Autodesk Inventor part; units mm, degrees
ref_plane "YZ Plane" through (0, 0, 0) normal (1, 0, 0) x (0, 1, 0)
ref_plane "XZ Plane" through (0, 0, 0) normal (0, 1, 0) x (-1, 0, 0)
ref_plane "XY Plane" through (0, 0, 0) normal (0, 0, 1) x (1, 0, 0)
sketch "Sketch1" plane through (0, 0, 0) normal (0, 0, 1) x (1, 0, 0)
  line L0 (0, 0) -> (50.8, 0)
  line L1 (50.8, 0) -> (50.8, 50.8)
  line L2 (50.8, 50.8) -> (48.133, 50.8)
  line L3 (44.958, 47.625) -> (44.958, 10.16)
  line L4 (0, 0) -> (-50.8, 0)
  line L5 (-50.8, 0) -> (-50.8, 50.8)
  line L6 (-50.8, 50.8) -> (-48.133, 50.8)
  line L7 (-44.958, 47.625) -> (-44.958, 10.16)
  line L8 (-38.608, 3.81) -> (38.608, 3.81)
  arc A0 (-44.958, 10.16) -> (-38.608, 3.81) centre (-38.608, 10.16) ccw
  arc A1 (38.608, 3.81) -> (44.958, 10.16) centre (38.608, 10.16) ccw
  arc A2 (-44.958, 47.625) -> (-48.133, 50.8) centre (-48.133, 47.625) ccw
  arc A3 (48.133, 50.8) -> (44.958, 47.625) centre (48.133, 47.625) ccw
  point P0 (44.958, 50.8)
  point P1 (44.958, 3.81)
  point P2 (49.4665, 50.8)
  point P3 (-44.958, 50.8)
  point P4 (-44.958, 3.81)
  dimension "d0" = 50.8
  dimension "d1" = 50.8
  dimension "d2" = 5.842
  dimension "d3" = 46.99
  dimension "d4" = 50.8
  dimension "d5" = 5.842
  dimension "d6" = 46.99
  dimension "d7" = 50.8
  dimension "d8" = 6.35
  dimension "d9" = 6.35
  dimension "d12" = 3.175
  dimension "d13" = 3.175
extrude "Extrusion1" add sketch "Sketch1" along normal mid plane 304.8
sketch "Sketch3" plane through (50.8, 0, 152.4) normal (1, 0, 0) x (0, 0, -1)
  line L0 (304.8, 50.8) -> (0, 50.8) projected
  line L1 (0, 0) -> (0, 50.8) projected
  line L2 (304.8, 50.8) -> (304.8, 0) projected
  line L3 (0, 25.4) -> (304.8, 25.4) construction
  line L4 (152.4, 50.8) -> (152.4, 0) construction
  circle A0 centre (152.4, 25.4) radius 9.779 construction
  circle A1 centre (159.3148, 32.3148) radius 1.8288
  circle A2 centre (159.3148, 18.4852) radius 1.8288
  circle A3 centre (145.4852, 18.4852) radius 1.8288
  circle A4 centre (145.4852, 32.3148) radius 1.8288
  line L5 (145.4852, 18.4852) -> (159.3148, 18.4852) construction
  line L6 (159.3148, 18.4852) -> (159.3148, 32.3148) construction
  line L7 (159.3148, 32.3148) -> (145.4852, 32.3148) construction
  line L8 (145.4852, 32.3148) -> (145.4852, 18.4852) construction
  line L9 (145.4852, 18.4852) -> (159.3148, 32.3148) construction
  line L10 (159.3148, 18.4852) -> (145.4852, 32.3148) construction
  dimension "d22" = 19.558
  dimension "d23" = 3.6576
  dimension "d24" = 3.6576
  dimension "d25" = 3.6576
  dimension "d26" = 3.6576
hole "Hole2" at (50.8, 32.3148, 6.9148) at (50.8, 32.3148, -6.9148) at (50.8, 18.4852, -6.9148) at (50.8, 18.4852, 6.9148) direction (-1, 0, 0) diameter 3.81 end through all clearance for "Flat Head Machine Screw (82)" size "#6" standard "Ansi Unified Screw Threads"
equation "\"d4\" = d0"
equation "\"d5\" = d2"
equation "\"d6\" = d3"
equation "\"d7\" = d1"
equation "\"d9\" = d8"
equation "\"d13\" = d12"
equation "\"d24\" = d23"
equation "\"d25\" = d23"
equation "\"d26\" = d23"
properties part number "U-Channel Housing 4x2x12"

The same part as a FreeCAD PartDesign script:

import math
import FreeCAD as App
import Part
import Sketcher
Q = App.Units.Quantity

doc = App.newDocument("Part")
body = doc.addObject("PartDesign::Body", "Body")

# Sketch on XY plane
sketch1 = body.newObject("Sketcher::SketchObject", "Sketch")
sketch1.AttachmentSupport = (doc.getObject("XY_Plane"), [""])
sketch1.MapMode = "FlatFace"
sketch1.addGeometry(Part.LineSegment(App.Vector(-50.8, 0, 0), App.Vector(50.8, 0, 0)), False)
sketch1.addGeometry(Part.LineSegment(App.Vector(50.8, 0, 0), App.Vector(50.8, 50.8, 0)), False)
sketch1.addGeometry(Part.LineSegment(App.Vector(50.8, 50.8, 0), App.Vector(48.133, 50.8, 0)), False)
sketch1.addGeometry(Part.ArcOfCircle(Part.Circle(App.Vector(48.133, 47.625, 0), App.Vector(0, 0, 1), 3.175), math.radians(90), math.radians(180)), False)
sketch1.addGeometry(Part.LineSegment(App.Vector(44.958, 47.625, 0), App.Vector(44.958, 10.16, 0)), False)
sketch1.addGeometry(Part.ArcOfCircle(Part.Circle(App.Vector(38.608, 10.16, 0), App.Vector(0, 0, 1), 6.35), math.radians(-90), math.radians(0)), False)
sketch1.addGeometry(Part.LineSegment(App.Vector(38.608, 3.81, 0), App.Vector(-38.608, 3.81, 0)), False)
sketch1.addGeometry(Part.ArcOfCircle(Part.Circle(App.Vector(-38.608, 10.16, 0), App.Vector(0, 0, 1), 6.35), math.radians(180), math.radians(270)), False)
sketch1.addGeometry(Part.LineSegment(App.Vector(-44.958, 10.16, 0), App.Vector(-44.958, 47.625, 0)), False)
sketch1.addGeometry(Part.ArcOfCircle(Part.Circle(App.Vector(-48.133, 47.625, 0), App.Vector(0, 0, 1), 3.175), math.radians(0), math.radians(90)), False)
sketch1.addGeometry(Part.LineSegment(App.Vector(-48.133, 50.8, 0), App.Vector(-50.8, 50.8, 0)), False)
sketch1.addGeometry(Part.LineSegment(App.Vector(-50.8, 50.8, 0), App.Vector(-50.8, 0, 0)), False)
sketch1.addConstraint(Sketcher.Constraint("Coincident", 0, 2, 1, 1))
sketch1.addConstraint(Sketcher.Constraint("Coincident", 1, 2, 2, 1))
sketch1.addConstraint(Sketcher.Constraint("Tangent", 2, 2, 3, 1))
sketch1.addConstraint(Sketcher.Constraint("Tangent", 3, 2, 4, 1))
sketch1.addConstraint(Sketcher.Constraint("Tangent", 4, 2, 5, 2))
sketch1.addConstraint(Sketcher.Constraint("Tangent", 5, 1, 6, 1))
sketch1.addConstraint(Sketcher.Constraint("Tangent", 6, 2, 7, 2))
sketch1.addConstraint(Sketcher.Constraint("Tangent", 7, 1, 8, 1))
sketch1.addConstraint(Sketcher.Constraint("Tangent", 8, 2, 9, 1))
sketch1.addConstraint(Sketcher.Constraint("Tangent", 9, 2, 10, 1))
sketch1.addConstraint(Sketcher.Constraint("Coincident", 10, 2, 11, 1))
sketch1.addConstraint(Sketcher.Constraint("Coincident", 11, 2, 0, 1))
sketch1.addConstraint(Sketcher.Constraint("Horizontal", 0))
sketch1.addConstraint(Sketcher.Constraint("Vertical", 1))
sketch1.addConstraint(Sketcher.Constraint("Horizontal", 2))
sketch1.addConstraint(Sketcher.Constraint("Vertical", 4))
sketch1.addConstraint(Sketcher.Constraint("Horizontal", 6))
sketch1.addConstraint(Sketcher.Constraint("Vertical", 8))
sketch1.addConstraint(Sketcher.Constraint("Horizontal", 10))
sketch1.addConstraint(Sketcher.Constraint("Vertical", 11))
sketch1.addConstraint(Sketcher.Constraint("Equal", 5, 7))
sketch1.addConstraint(Sketcher.Constraint("Equal", 3, 9))
sketch1.addConstraint(Sketcher.Constraint("Symmetric", 0, 2, 11, 2, -1, 1))
sketch1.addConstraint(Sketcher.Constraint("Symmetric", 3, 3, 9, 3, -2))
sketch1.addConstraint(Sketcher.Constraint("DistanceY", 1, 1, 1, 2, Q("2 in")))
sketch1.addConstraint(Sketcher.Constraint("Radius", 5, Q("0.25 in")))
sketch1.addConstraint(Sketcher.Constraint("DistanceX", -1, 1, 0, 2, Q("2 in")))
sketch1.addConstraint(Sketcher.Constraint("Radius", 3, Q("0.125 in")))
sketch1.addConstraint(Sketcher.Constraint("DistanceX", 3, 2, 1, 2, Q("0.23 in")))
sketch1.addConstraint(Sketcher.Constraint("DistanceY", 6, 2, 9, 2, Q("1.85 in")))
pad1 = body.newObject("PartDesign::Pad", "Pad")
pad1.Profile = sketch1
pad1.Length = Q("12 in")
pad1.Midplane = True

# Sketch on YZ plane
sketch2 = body.newObject("Sketcher::SketchObject", "Sketch001")
sketch2.AttachmentSupport = (doc.getObject("YZ_Plane"), [""])
sketch2.MapMode = "FlatFace"
sketch2.AttachmentOffset = App.Placement(App.Vector(0, 0, 2 * 25.4), App.Rotation())
sketch2.addGeometry(Part.Circle(App.Vector(32.3148, 6.9148, 0), App.Vector(0, 0, 1), 1.905), False)
sketch2.addGeometry(Part.Circle(App.Vector(32.3148, -6.9148, 0), App.Vector(0, 0, 1), 1.905), False)
sketch2.addGeometry(Part.Circle(App.Vector(18.4852, -6.9148, 0), App.Vector(0, 0, 1), 1.905), False)
sketch2.addGeometry(Part.Circle(App.Vector(18.4852, 6.9148, 0), App.Vector(0, 0, 1), 1.905), False)
sketch2.addConstraint(Sketcher.Constraint("Equal", 0, 1))
sketch2.addConstraint(Sketcher.Constraint("Equal", 1, 2))
sketch2.addConstraint(Sketcher.Constraint("Equal", 2, 3))
sketch2.addConstraint(Sketcher.Constraint("Symmetric", 0, 3, 1, 3, -1))
sketch2.addConstraint(Sketcher.Constraint("Symmetric", 2, 3, 3, 3, -1))
sketch2.addConstraint(Sketcher.Constraint("Horizontal", 1, 3, 2, 3))
sketch2.addConstraint(Sketcher.Constraint("Diameter", 0, Q("0.15 in")))
sketch2.addConstraint(Sketcher.Constraint("DistanceX", -1, 1, 0, 3, Q("32.3148 mm")))
sketch2.addConstraint(Sketcher.Constraint("DistanceY", -1, 1, 0, 3, Q("6.9148 mm")))
sketch2.addConstraint(Sketcher.Constraint("DistanceX", -1, 1, 2, 3, Q("18.4852 mm")))
doc.recompute()
hole = body.newObject("PartDesign::Hole", "Hole")
hole.Profile = sketch2
hole.ThreadType = "None"
hole.Diameter = Q("0.15 in")
hole.DepthType = "ThroughAll"

doc.recompute()
